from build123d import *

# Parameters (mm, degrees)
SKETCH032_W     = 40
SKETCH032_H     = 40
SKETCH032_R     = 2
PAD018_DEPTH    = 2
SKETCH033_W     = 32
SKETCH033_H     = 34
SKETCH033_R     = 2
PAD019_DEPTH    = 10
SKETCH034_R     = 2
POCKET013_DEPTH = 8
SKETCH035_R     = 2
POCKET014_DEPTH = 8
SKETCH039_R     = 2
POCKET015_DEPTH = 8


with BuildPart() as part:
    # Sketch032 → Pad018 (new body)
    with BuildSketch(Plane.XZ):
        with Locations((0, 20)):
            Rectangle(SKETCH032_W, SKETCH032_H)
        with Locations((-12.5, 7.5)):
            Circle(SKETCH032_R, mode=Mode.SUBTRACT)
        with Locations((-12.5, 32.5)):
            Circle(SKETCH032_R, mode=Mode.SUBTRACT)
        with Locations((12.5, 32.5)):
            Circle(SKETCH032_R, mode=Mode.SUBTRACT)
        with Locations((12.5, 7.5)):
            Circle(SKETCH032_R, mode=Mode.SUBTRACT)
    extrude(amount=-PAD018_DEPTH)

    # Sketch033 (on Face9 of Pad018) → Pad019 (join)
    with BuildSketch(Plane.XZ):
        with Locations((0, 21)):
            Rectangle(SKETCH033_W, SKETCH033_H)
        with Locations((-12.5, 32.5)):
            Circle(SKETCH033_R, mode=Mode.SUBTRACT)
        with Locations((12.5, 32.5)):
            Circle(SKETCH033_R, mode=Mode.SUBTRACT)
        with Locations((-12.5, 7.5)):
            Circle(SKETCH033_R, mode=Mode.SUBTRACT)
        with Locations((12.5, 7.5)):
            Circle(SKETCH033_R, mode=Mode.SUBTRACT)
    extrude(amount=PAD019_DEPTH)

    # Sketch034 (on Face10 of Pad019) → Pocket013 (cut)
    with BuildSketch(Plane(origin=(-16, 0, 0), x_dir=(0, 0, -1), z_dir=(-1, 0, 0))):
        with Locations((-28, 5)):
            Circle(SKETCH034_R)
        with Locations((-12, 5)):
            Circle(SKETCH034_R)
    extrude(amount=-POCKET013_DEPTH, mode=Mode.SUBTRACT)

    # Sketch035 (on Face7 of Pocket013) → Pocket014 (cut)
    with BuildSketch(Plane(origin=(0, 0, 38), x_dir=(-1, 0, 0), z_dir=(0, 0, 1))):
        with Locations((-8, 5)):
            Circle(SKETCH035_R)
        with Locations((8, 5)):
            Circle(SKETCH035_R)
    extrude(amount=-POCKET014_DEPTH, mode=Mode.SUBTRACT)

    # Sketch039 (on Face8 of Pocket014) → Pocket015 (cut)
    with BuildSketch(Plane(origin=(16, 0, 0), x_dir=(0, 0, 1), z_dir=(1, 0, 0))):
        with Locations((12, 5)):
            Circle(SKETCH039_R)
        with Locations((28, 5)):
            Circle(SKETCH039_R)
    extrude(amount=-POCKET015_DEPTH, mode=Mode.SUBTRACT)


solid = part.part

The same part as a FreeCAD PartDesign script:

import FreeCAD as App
import Part
import Sketcher
Q = App.Units.Quantity

doc = App.newDocument("Part")
body = doc.addObject("PartDesign::Body", "Body")

# Sketch on XZ plane
sketch1 = doc.addObject("Sketcher::SketchObject", "Sketch")
body.addObject(sketch1)
sketch1.AttachmentSupport = (doc.XZ_Plane, [""])
sketch1.MapMode = "FlatFace"
sketch1.addGeometry(Part.LineSegment(App.Vector(-20, 40, 0), App.Vector(-20, 0, 0)), False)
sketch1.addGeometry(Part.LineSegment(App.Vector(-20, 0, 0), App.Vector(20, 0, 0)), False)
sketch1.addGeometry(Part.LineSegment(App.Vector(20, 0, 0), App.Vector(20, 40, 0)), False)
sketch1.addGeometry(Part.LineSegment(App.Vector(20, 40, 0), App.Vector(-20, 40, 0)), False)
sketch1.addGeometry(Part.Circle(App.Vector(-12.5, 7.5, 0), App.Vector(0, 0, 1), 2), False)
sketch1.addGeometry(Part.Circle(App.Vector(12.5, 7.5, 0), App.Vector(0, 0, 1), 2), False)
sketch1.addGeometry(Part.Circle(App.Vector(-12.5, 32.5, 0), App.Vector(0, 0, 1), 2), False)
sketch1.addGeometry(Part.Circle(App.Vector(12.5, 32.5, 0), App.Vector(0, 0, 1), 2), False)
sketch1.addConstraint(Sketcher.Constraint("Coincident", 0, 2, 1, 1))
sketch1.addConstraint(Sketcher.Constraint("Coincident", 1, 2, 2, 1))
sketch1.addConstraint(Sketcher.Constraint("Coincident", 2, 2, 3, 1))
sketch1.addConstraint(Sketcher.Constraint("Coincident", 3, 2, 0, 1))
sketch1.addConstraint(Sketcher.Constraint("Vertical", 0))
sketch1.addConstraint(Sketcher.Constraint("Horizontal", 1))
sketch1.addConstraint(Sketcher.Constraint("Vertical", 2))
sketch1.addConstraint(Sketcher.Constraint("Horizontal", 3))
sketch1.addConstraint(Sketcher.Constraint("Equal", 4, 5))
sketch1.addConstraint(Sketcher.Constraint("Equal", 5, 6))
sketch1.addConstraint(Sketcher.Constraint("Equal", 6, 7))
sketch1.addConstraint(Sketcher.Constraint("Symmetric", 0, 2, 1, 2, -1, 1))
sketch1.addConstraint(Sketcher.Constraint("Symmetric", 4, 3, 5, 3, -2))
sketch1.addConstraint(Sketcher.Constraint("Symmetric", 6, 3, 7, 3, -2))
sketch1.addConstraint(Sketcher.Constraint("Vertical", 4, 3, 6, 3))
sketch1.addConstraint(Sketcher.Constraint("Equal", 3, 0))
sketch1.addConstraint(Sketcher.Constraint("Diameter", 4, Q("4 mm")))
sketch1.addConstraint(Sketcher.Constraint("DistanceX", 1, 1, 1, 2, Q("40 mm")))
sketch1.addConstraint(Sketcher.Constraint("DistanceX", 4, 3, 5, 3, Q("25 mm")))
sketch1.addConstraint(Sketcher.Constraint("DistanceY", 4, 3, 6, 3, Q("25 mm")))
sketch1.addConstraint(Sketcher.Constraint("DistanceY", -1, 1, 4, 3, Q("7.5 mm")))
pad1 = doc.addObject("PartDesign::Pad", "Pad")
body.addObject(pad1)
pad1.Profile = sketch1
pad1.Length = 2
pad1.Reversed = True

# Sketch on XZ plane
sketch2 = doc.addObject("Sketcher::SketchObject", "Sketch001")
body.addObject(sketch2)
sketch2.AttachmentSupport = (doc.XZ_Plane, [""])
sketch2.MapMode = "FlatFace"
sketch2.addGeometry(Part.LineSegment(App.Vector(-16, 38, 0), App.Vector(-16, 4, 0)), False)
sketch2.addGeometry(Part.LineSegment(App.Vector(-16, 4, 0), App.Vector(16, 4, 0)), False)
sketch2.addGeometry(Part.LineSegment(App.Vector(16, 4, 0), App.Vector(16, 38, 0)), False)
sketch2.addGeometry(Part.LineSegment(App.Vector(16, 38, 0), App.Vector(-16, 38, 0)), False)
sketch2.addGeometry(Part.Circle(App.Vector(-12.5, 7.5, 0), App.Vector(0, 0, 1), 2), False)
sketch2.addGeometry(Part.Circle(App.Vector(12.5, 7.5, 0), App.Vector(0, 0, 1), 2), False)
sketch2.addGeometry(Part.Circle(App.Vector(-12.5, 32.5, 0), App.Vector(0, 0, 1), 2), False)
sketch2.addGeometry(Part.Circle(App.Vector(12.5, 32.5, 0), App.Vector(0, 0, 1), 2), False)
sketch2.addConstraint(Sketcher.Constraint("Coincident", 0, 2, 1, 1))
sketch2.addConstraint(Sketcher.Constraint("Coincident", 1, 2, 2, 1))
sketch2.addConstraint(Sketcher.Constraint("Coincident", 2, 2, 3, 1))
sketch2.addConstraint(Sketcher.Constraint("Coincident", 3, 2, 0, 1))
sketch2.addConstraint(Sketcher.Constraint("Vertical", 0))
sketch2.addConstraint(Sketcher.Constraint("Horizontal", 1))
sketch2.addConstraint(Sketcher.Constraint("Vertical", 2))
sketch2.addConstraint(Sketcher.Constraint("Horizontal", 3))
sketch2.addConstraint(Sketcher.Constraint("Equal", 4, 5))
sketch2.addConstraint(Sketcher.Constraint("Equal", 5, 6))
sketch2.addConstraint(Sketcher.Constraint("Equal", 6, 7))
sketch2.addConstraint(Sketcher.Constraint("Symmetric", 4, 3, 5, 3, -2))
sketch2.addConstraint(Sketcher.Constraint("Symmetric", 6, 3, 7, 3, -2))
sketch2.addConstraint(Sketcher.Constraint("Vertical", 4, 3, 6, 3))
sketch2.addConstraint(Sketcher.Constraint("Diameter", 4, Q("4 mm")))
sketch2.addConstraint(Sketcher.Constraint("DistanceX", 1, 1, 1, 2, Q("32 mm")))
sketch2.addConstraint(Sketcher.Constraint("DistanceY", 0, 2, 0, 1, Q("34 mm")))
sketch2.addConstraint(Sketcher.Constraint("DistanceX", 0, 2, -1, 1, Q("16 mm")))
sketch2.addConstraint(Sketcher.Constraint("DistanceY", -1, 1, 0, 2, Q("4 mm")))
sketch2.addConstraint(Sketcher.Constraint("DistanceX", 4, 3, 5, 3, Q("25 mm")))
sketch2.addConstraint(Sketcher.Constraint("DistanceY", 4, 3, 6, 3, Q("25 mm")))
sketch2.addConstraint(Sketcher.Constraint("DistanceY", -1, 1, 4, 3, Q("7.5 mm")))
pad2 = doc.addObject("PartDesign::Pad", "Pad001")
body.addObject(pad2)
pad2.Profile = sketch2
pad2.Length = 10

# Sketch on YZ plane
sketch3 = doc.addObject("Sketcher::SketchObject", "Sketch002")
body.addObject(sketch3)
sketch3.AttachmentSupport = (doc.YZ_Plane, [""])
sketch3.MapMode = "FlatFace"
sketch3.AttachmentOffset = App.Placement(App.Vector(0, 0, -16), App.Rotation())
sketch3.addGeometry(Part.Circle(App.Vector(-5, 28, 0), App.Vector(0, 0, 1), 2), False)
sketch3.addGeometry(Part.Circle(App.Vector(-5, 12, 0), App.Vector(0, 0, 1), 2), False)
sketch3.addConstraint(Sketcher.Constraint("Equal", 0, 1))
sketch3.addConstraint(Sketcher.Constraint("Vertical", 0, 3, 1, 3))
sketch3.addConstraint(Sketcher.Constraint("Diameter", 0, Q("4 mm")))
sketch3.addConstraint(Sketcher.Constraint("DistanceX", 0, 3, -1, 1, Q("5 mm")))
sketch3.addConstraint(Sketcher.Constraint("DistanceY", -1, 1, 0, 3, Q("28 mm")))
sketch3.addConstraint(Sketcher.Constraint("DistanceY", -1, 1, 1, 3, Q("12 mm")))
pocket1 = doc.addObject("PartDesign::Pocket", "Pocket")
body.addObject(pocket1)
pocket1.Profile = sketch3
pocket1.Length = 8
pocket1.Reversed = True

# Sketch on XY plane
sketch4 = doc.addObject("Sketcher::SketchObject", "Sketch003")
body.addObject(sketch4)
sketch4.AttachmentSupport = (doc.XY_Plane, [""])
sketch4.MapMode = "FlatFace"
sketch4.AttachmentOffset = App.Placement(App.Vector(0, 0, 38), App.Rotation())
sketch4.addGeometry(Part.Circle(App.Vector(8, -5, 0), App.Vector(0, 0, 1), 2), False)
sketch4.addGeometry(Part.Circle(App.Vector(-8, -5, 0), App.Vector(0, 0, 1), 2), False)
sketch4.addConstraint(Sketcher.Constraint("Equal", 0, 1))
sketch4.addConstraint(Sketcher.Constraint("Symmetric", 0, 3, 1, 3, -2))
sketch4.addConstraint(Sketcher.Constraint("Diameter", 0, Q("4 mm")))
sketch4.addConstraint(Sketcher.Constraint("DistanceX", -1, 1, 0, 3, Q("8 mm")))
sketch4.addConstraint(Sketcher.Constraint("DistanceY", 0, 3, -1, 1, Q("5 mm")))
pocket2 = doc.addObject("PartDesign::Pocket", "Pocket001")
body.addObject(pocket2)
pocket2.Profile = sketch4
pocket2.Length = 8

# Sketch on YZ plane
sketch5 = doc.addObject("Sketcher::SketchObject", "Sketch004")
body.addObject(sketch5)
sketch5.AttachmentSupport = (doc.YZ_Plane, [""])
sketch5.MapMode = "FlatFace"
sketch5.AttachmentOffset = App.Placement(App.Vector(0, 0, 16), App.Rotation())
sketch5.addGeometry(Part.Circle(App.Vector(-5, 12, 0), App.Vector(0, 0, 1), 2), False)
sketch5.addGeometry(Part.Circle(App.Vector(-5, 28, 0), App.Vector(0, 0, 1), 2), False)
sketch5.addConstraint(Sketcher.Constraint("Equal", 0, 1))
sketch5.addConstraint(Sketcher.Constraint("Vertical", 0, 3, 1, 3))
sketch5.addConstraint(Sketcher.Constraint("Diameter", 0, Q("4 mm")))
sketch5.addConstraint(Sketcher.Constraint("DistanceX", 0, 3, -1, 1, Q("5 mm")))
sketch5.addConstraint(Sketcher.Constraint("DistanceY", -1, 1, 0, 3, Q("12 mm")))
sketch5.addConstraint(Sketcher.Constraint("DistanceY", -1, 1, 1, 3, Q("28 mm")))
pocket3 = doc.addObject("PartDesign::Pocket", "Pocket002")
body.addObject(pocket3)
pocket3.Profile = sketch5
pocket3.Length = 8

doc.recompute()
